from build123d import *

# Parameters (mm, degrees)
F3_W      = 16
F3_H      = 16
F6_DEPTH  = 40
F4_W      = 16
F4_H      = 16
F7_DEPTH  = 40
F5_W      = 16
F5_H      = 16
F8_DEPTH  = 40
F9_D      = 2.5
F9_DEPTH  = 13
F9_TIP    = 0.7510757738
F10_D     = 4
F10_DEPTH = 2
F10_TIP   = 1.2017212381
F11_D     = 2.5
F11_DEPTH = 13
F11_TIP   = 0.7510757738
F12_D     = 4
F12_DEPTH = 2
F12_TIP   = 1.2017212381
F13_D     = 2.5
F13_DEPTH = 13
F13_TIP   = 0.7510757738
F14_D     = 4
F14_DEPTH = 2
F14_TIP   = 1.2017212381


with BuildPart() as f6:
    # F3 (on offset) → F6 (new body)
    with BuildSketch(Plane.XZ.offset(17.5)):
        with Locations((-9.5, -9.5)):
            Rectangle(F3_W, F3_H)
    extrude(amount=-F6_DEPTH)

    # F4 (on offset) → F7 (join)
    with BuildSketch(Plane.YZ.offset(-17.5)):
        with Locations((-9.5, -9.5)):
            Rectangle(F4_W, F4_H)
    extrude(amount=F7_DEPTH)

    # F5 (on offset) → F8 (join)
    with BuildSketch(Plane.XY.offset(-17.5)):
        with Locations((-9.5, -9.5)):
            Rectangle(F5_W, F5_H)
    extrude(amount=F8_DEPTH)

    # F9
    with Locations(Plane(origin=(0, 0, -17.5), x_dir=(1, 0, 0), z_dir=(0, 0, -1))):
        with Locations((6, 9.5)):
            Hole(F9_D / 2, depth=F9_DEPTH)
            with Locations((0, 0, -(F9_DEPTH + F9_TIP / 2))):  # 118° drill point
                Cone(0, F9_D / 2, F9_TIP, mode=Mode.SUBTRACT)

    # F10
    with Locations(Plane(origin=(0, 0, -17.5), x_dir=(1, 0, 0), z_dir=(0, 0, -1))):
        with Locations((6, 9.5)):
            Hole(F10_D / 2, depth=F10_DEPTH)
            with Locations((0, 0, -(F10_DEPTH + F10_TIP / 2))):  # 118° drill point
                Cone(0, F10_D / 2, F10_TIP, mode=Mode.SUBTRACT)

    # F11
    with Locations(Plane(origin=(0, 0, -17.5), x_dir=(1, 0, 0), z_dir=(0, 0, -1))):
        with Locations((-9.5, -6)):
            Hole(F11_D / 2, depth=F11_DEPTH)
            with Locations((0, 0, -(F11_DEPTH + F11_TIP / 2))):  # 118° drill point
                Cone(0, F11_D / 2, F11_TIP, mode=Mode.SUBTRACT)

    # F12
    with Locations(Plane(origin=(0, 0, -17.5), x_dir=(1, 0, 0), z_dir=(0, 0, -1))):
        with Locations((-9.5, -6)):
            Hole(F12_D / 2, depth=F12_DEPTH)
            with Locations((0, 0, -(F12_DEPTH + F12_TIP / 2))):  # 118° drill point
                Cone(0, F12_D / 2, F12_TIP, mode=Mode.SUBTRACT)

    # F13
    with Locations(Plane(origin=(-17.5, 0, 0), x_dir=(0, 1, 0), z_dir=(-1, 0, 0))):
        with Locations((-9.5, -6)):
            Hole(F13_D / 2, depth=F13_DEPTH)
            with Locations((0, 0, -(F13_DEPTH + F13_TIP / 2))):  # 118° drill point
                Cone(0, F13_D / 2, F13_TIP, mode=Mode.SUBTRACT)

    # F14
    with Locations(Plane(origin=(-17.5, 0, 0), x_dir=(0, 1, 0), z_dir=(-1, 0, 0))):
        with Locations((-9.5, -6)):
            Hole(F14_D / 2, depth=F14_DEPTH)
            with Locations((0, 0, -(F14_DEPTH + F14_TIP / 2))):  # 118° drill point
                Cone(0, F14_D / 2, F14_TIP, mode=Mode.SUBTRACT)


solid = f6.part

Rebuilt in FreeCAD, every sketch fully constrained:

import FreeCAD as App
import Part
import Sketcher

V = App.Vector
Q = App.Units.Quantity


def add_polygon(sketch, points):
    """Adds a closed chain of lines whose ends are joined by coincident constraints."""
    first, n = sketch.GeometryCount, len(points)
    for a, b in zip(points, points[1:] + points[:1]):
        sketch.addGeometry(Part.LineSegment(App.Vector(*a, 0), App.Vector(*b, 0)), False)
    for i in range(n):
        sketch.addConstraint(Sketcher.Constraint("Coincident", first + i, 2, first + (i + 1) % n, 1))

doc = App.newDocument("Part")
params = doc.addObject("Spreadsheet::Sheet", "Params")
for row, (alias, value) in enumerate([
    ("sketch1_width", "16 mm"),
    ("pad1_length", "40 mm"),
    ("sketch2_width", "16 mm"),
    ("pad2_length", "40 mm"),
    ("sketch3_width", "16 mm"),
    ("pad3_length", "40 mm"),
    ("sketch4_diameter", "2.5 mm"),
    ("hole_diameter", "2.5 mm"),
    ("hole_depth", "13 mm"),
    ("sketch5_diameter", "4 mm"),
    ("hole2_diameter", "4 mm"),
    ("hole2_depth", "2 mm"),
    ("sketch6_diameter", "2.5 mm"),
    ("hole3_diameter", "2.5 mm"),
    ("hole3_depth", "13 mm"),
    ("sketch7_diameter", "4 mm"),
    ("hole4_diameter", "4 mm"),
    ("hole4_depth", "2 mm"),
    ("sketch8_diameter", "2.5 mm"),
    ("hole5_diameter", "2.5 mm"),
    ("hole5_depth", "13 mm"),
    ("sketch9_diameter", "4 mm"),
    ("hole6_diameter", "4 mm"),
    ("hole6_depth", "2 mm"),
], start=1):
    params.set(f"A{row}", alias)
    params.set(f"B{row}", "=" + value)
    params.setAlias(f"B{row}", alias)

body = doc.addObject("PartDesign::Body", "Body")

sketch1 = body.newObject("Sketcher::SketchObject", "Sketch")
sketch1.AttachmentSupport = (doc.getObject("XZ_Plane"), [""])
sketch1.MapMode = "FlatFace"
sketch1.AttachmentOffset = App.Placement(V(0, 0, 17.5), App.Rotation())
add_polygon(sketch1, [(-18, -2), (-18, -18), (-2, -18), (-2, -2)])
sketch1.addConstraint([
    Sketcher.Constraint("Vertical", 0),
    Sketcher.Constraint("Horizontal", 1),
    Sketcher.Constraint("Vertical", 2),
    Sketcher.Constraint("Horizontal", 3),
    Sketcher.Constraint("Equal", 3, 0),
    Sketcher.Constraint("DistanceX", 1, 1, 1, 2, Q("16 mm")),
    Sketcher.Constraint("DistanceX", 0, 2, -1, 1, Q("17.5 mm")),
    Sketcher.Constraint("DistanceY", 0, 2, -1, 1, Q("17.5 mm")),
])
sketch1.setExpression("Constraints[9]", "Params.sketch1_width")
pad1 = body.newObject("PartDesign::Pad", "Pad")
pad1.Profile = sketch1
pad1.setExpression("Length", "Params.pad1_length")
pad1.Reversed = True

sketch2 = body.newObject("Sketcher::SketchObject", "Sketch001")
sketch2.AttachmentSupport = (doc.getObject("YZ_Plane"), [""])
sketch2.MapMode = "FlatFace"
sketch2.AttachmentOffset = App.Placement(V(0, 0, -17.5), App.Rotation())
add_polygon(sketch2, [(-18, -2), (-18, -18), (-2, -18), (-2, -2)])
sketch2.addConstraint([
    Sketcher.Constraint("Vertical", 0),
    Sketcher.Constraint("Horizontal", 1),
    Sketcher.Constraint("Vertical", 2),
    Sketcher.Constraint("Horizontal", 3),
    Sketcher.Constraint("Equal", 3, 0),
    Sketcher.Constraint("DistanceX", 1, 1, 1, 2, Q("16 mm")),
    Sketcher.Constraint("DistanceX", 0, 2, -1, 1, Q("17.5 mm")),
    Sketcher.Constraint("DistanceY", 0, 2, -1, 1, Q("17.5 mm")),
])
sketch2.setExpression("Constraints[9]", "Params.sketch2_width")
pad2 = body.newObject("PartDesign::Pad", "Pad001")
pad2.Profile = sketch2
pad2.setExpression("Length", "Params.pad2_length")

sketch3 = body.newObject("Sketcher::SketchObject", "Sketch002")
sketch3.AttachmentSupport = (doc.getObject("XY_Plane"), [""])
sketch3.MapMode = "FlatFace"
sketch3.AttachmentOffset = App.Placement(V(0, 0, -17.5), App.Rotation())
add_polygon(sketch3, [(-18, -2), (-18, -18), (-2, -18), (-2, -2)])
sketch3.addConstraint([
    Sketcher.Constraint("Vertical", 0),
    Sketcher.Constraint("Horizontal", 1),
    Sketcher.Constraint("Vertical", 2),
    Sketcher.Constraint("Horizontal", 3),
    Sketcher.Constraint("Equal", 3, 0),
    Sketcher.Constraint("DistanceX", 1, 1, 1, 2, Q("16 mm")),
    Sketcher.Constraint("DistanceX", 0, 2, -1, 1, Q("17.5 mm")),
    Sketcher.Constraint("DistanceY", 0, 2, -1, 1, Q("17.5 mm")),
])
sketch3.setExpression("Constraints[9]", "Params.sketch3_width")
pad3 = body.newObject("PartDesign::Pad", "Pad002")
pad3.Profile = sketch3
pad3.setExpression("Length", "Params.pad3_length")

sketch4 = body.newObject("Sketcher::SketchObject", "Sketch003")
sketch4.AttachmentSupport = (doc.getObject("XY_Plane"), [""])
sketch4.MapMode = "FlatFace"
sketch4.AttachmentOffset = App.Placement(V(0, 0, -17.5), App.Rotation())
sketch4.addGeometry(Part.Circle(V(6, -9.5, 0), V(0, 0, 1), 1.2), False)
sketch4.addConstraint([
    Sketcher.Constraint("Diameter", 0, Q("2.5 mm")),
    Sketcher.Constraint("DistanceX", -1, 1, 0, 3, Q("6 mm")),
    Sketcher.Constraint("DistanceY", 0, 3, -1, 1, Q("9.5 mm")),
])
sketch4.setExpression("Constraints[0]", "Params.sketch4_diameter")
doc.recompute()
hole = body.newObject("PartDesign::Hole", "Hole")
hole.Profile = sketch4
hole.ThreadType = "None"
hole.setExpression("Diameter", "Params.hole_diameter")
hole.DepthType = "Dimension"
hole.setExpression("Depth", "Params.hole_depth")
hole.DrillPoint = "Angled"
hole.DrillPointAngle = 118
hole.Reversed = True

sketch5 = body.newObject("Sketcher::SketchObject", "Sketch004")
sketch5.AttachmentSupport = (doc.getObject("XY_Plane"), [""])
sketch5.MapMode = "FlatFace"
sketch5.AttachmentOffset = App.Placement(V(0, 0, -17.5), App.Rotation())
sketch5.addGeometry(Part.Circle(V(6, -9.5, 0), V(0, 0, 1), 2), False)
sketch5.addConstraint([
    Sketcher.Constraint("Diameter", 0, Q("4 mm")),
    Sketcher.Constraint("DistanceX", -1, 1, 0, 3, Q("6 mm")),
    Sketcher.Constraint("DistanceY", 0, 3, -1, 1, Q("9.5 mm")),
])
sketch5.setExpression("Constraints[0]", "Params.sketch5_diameter")
doc.recompute()
hole2 = body.newObject("PartDesign::Hole", "Hole001")
hole2.Profile = sketch5
hole2.ThreadType = "None"
hole2.setExpression("Diameter", "Params.hole2_diameter")
hole2.DepthType = "Dimension"
hole2.setExpression("Depth", "Params.hole2_depth")
hole2.DrillPoint = "Angled"
hole2.DrillPointAngle = 118
hole2.Reversed = True

sketch6 = body.newObject("Sketcher::SketchObject", "Sketch005")
sketch6.AttachmentSupport = (doc.getObject("XY_Plane"), [""])
sketch6.MapMode = "FlatFace"
sketch6.AttachmentOffset = App.Placement(V(0, 0, -17.5), App.Rotation())
sketch6.addGeometry(Part.Circle(V(-9.5, 6, 0), V(0, 0, 1), 1.2), False)
sketch6.addConstraint([
    Sketcher.Constraint("Diameter", 0, Q("2.5 mm")),
    Sketcher.Constraint("DistanceY", -1, 1, 0, 3, Q("6 mm")),
    Sketcher.Constraint("DistanceX", 0, 3, -1, 1, Q("9.5 mm")),
])
sketch6.setExpression("Constraints[0]", "Params.sketch6_diameter")
doc.recompute()
hole3 = body.newObject("PartDesign::Hole", "Hole002")
hole3.Profile = sketch6
hole3.ThreadType = "None"
hole3.setExpression("Diameter", "Params.hole3_diameter")
hole3.DepthType = "Dimension"
hole3.setExpression("Depth", "Params.hole3_depth")
hole3.DrillPoint = "Angled"
hole3.DrillPointAngle = 118
hole3.Reversed = True

sketch7 = body.newObject("Sketcher::SketchObject", "Sketch006")
sketch7.AttachmentSupport = (doc.getObject("XY_Plane"), [""])
sketch7.MapMode = "FlatFace"
sketch7.AttachmentOffset = App.Placement(V(0, 0, -17.5), App.Rotation())
sketch7.addGeometry(Part.Circle(V(-9.5, 6, 0), V(0, 0, 1), 2), False)
sketch7.addConstraint([
    Sketcher.Constraint("Diameter", 0, Q("4 mm")),
    Sketcher.Constraint("DistanceY", -1, 1, 0, 3, Q("6 mm")),
    Sketcher.Constraint("DistanceX", 0, 3, -1, 1, Q("9.5 mm")),
])
sketch7.setExpression("Constraints[0]", "Params.sketch7_diameter")
doc.recompute()
hole4 = body.newObject("PartDesign::Hole", "Hole003")
hole4.Profile = sketch7
hole4.ThreadType = "None"
hole4.setExpression("Diameter", "Params.hole4_diameter")
hole4.DepthType = "Dimension"
hole4.setExpression("Depth", "Params.hole4_depth")
hole4.DrillPoint = "Angled"
hole4.DrillPointAngle = 118
hole4.Reversed = True

sketch8 = body.newObject("Sketcher::SketchObject", "Sketch007")
sketch8.AttachmentSupport = (doc.getObject("YZ_Plane"), [""])
sketch8.MapMode = "FlatFace"
sketch8.AttachmentOffset = App.Placement(V(0, 0, -17.5), App.Rotation())
sketch8.addGeometry(Part.Circle(V(-9.5, 6, 0), V(0, 0, 1), 1.2), False)
sketch8.addConstraint([
    Sketcher.Constraint("Diameter", 0, Q("2.5 mm")),
    Sketcher.Constraint("DistanceY", -1, 1, 0, 3, Q("6 mm")),
    Sketcher.Constraint("DistanceX", 0, 3, -1, 1, Q("9.5 mm")),
])
sketch8.setExpression("Constraints[0]", "Params.sketch8_diameter")
doc.recompute()
hole5 = body.newObject("PartDesign::Hole", "Hole004")
hole5.Profile = sketch8
hole5.ThreadType = "None"
hole5.setExpression("Diameter", "Params.hole5_diameter")
hole5.DepthType = "Dimension"
hole5.setExpression("Depth", "Params.hole5_depth")
hole5.DrillPoint = "Angled"
hole5.DrillPointAngle = 118
hole5.Reversed = True

sketch9 = body.newObject("Sketcher::SketchObject", "Sketch008")
sketch9.AttachmentSupport = (doc.getObject("YZ_Plane"), [""])
sketch9.MapMode = "FlatFace"
sketch9.AttachmentOffset = App.Placement(V(0, 0, -17.5), App.Rotation())
sketch9.addGeometry(Part.Circle(V(-9.5, 6, 0), V(0, 0, 1), 2), False)
sketch9.addConstraint([
    Sketcher.Constraint("Diameter", 0, Q("4 mm")),
    Sketcher.Constraint("DistanceY", -1, 1, 0, 3, Q("6 mm")),
    Sketcher.Constraint("DistanceX", 0, 3, -1, 1, Q("9.5 mm")),
])
sketch9.setExpression("Constraints[0]", "Params.sketch9_diameter")
doc.recompute()
hole6 = body.newObject("PartDesign::Hole", "Hole005")
hole6.Profile = sketch9
hole6.ThreadType = "None"
hole6.setExpression("Diameter", "Params.hole6_diameter")
hole6.DepthType = "Dimension"
hole6.setExpression("Depth", "Params.hole6_depth")
hole6.DrillPoint = "Angled"
hole6.DrillPointAngle = 118
hole6.Reversed = True

doc.recompute()
